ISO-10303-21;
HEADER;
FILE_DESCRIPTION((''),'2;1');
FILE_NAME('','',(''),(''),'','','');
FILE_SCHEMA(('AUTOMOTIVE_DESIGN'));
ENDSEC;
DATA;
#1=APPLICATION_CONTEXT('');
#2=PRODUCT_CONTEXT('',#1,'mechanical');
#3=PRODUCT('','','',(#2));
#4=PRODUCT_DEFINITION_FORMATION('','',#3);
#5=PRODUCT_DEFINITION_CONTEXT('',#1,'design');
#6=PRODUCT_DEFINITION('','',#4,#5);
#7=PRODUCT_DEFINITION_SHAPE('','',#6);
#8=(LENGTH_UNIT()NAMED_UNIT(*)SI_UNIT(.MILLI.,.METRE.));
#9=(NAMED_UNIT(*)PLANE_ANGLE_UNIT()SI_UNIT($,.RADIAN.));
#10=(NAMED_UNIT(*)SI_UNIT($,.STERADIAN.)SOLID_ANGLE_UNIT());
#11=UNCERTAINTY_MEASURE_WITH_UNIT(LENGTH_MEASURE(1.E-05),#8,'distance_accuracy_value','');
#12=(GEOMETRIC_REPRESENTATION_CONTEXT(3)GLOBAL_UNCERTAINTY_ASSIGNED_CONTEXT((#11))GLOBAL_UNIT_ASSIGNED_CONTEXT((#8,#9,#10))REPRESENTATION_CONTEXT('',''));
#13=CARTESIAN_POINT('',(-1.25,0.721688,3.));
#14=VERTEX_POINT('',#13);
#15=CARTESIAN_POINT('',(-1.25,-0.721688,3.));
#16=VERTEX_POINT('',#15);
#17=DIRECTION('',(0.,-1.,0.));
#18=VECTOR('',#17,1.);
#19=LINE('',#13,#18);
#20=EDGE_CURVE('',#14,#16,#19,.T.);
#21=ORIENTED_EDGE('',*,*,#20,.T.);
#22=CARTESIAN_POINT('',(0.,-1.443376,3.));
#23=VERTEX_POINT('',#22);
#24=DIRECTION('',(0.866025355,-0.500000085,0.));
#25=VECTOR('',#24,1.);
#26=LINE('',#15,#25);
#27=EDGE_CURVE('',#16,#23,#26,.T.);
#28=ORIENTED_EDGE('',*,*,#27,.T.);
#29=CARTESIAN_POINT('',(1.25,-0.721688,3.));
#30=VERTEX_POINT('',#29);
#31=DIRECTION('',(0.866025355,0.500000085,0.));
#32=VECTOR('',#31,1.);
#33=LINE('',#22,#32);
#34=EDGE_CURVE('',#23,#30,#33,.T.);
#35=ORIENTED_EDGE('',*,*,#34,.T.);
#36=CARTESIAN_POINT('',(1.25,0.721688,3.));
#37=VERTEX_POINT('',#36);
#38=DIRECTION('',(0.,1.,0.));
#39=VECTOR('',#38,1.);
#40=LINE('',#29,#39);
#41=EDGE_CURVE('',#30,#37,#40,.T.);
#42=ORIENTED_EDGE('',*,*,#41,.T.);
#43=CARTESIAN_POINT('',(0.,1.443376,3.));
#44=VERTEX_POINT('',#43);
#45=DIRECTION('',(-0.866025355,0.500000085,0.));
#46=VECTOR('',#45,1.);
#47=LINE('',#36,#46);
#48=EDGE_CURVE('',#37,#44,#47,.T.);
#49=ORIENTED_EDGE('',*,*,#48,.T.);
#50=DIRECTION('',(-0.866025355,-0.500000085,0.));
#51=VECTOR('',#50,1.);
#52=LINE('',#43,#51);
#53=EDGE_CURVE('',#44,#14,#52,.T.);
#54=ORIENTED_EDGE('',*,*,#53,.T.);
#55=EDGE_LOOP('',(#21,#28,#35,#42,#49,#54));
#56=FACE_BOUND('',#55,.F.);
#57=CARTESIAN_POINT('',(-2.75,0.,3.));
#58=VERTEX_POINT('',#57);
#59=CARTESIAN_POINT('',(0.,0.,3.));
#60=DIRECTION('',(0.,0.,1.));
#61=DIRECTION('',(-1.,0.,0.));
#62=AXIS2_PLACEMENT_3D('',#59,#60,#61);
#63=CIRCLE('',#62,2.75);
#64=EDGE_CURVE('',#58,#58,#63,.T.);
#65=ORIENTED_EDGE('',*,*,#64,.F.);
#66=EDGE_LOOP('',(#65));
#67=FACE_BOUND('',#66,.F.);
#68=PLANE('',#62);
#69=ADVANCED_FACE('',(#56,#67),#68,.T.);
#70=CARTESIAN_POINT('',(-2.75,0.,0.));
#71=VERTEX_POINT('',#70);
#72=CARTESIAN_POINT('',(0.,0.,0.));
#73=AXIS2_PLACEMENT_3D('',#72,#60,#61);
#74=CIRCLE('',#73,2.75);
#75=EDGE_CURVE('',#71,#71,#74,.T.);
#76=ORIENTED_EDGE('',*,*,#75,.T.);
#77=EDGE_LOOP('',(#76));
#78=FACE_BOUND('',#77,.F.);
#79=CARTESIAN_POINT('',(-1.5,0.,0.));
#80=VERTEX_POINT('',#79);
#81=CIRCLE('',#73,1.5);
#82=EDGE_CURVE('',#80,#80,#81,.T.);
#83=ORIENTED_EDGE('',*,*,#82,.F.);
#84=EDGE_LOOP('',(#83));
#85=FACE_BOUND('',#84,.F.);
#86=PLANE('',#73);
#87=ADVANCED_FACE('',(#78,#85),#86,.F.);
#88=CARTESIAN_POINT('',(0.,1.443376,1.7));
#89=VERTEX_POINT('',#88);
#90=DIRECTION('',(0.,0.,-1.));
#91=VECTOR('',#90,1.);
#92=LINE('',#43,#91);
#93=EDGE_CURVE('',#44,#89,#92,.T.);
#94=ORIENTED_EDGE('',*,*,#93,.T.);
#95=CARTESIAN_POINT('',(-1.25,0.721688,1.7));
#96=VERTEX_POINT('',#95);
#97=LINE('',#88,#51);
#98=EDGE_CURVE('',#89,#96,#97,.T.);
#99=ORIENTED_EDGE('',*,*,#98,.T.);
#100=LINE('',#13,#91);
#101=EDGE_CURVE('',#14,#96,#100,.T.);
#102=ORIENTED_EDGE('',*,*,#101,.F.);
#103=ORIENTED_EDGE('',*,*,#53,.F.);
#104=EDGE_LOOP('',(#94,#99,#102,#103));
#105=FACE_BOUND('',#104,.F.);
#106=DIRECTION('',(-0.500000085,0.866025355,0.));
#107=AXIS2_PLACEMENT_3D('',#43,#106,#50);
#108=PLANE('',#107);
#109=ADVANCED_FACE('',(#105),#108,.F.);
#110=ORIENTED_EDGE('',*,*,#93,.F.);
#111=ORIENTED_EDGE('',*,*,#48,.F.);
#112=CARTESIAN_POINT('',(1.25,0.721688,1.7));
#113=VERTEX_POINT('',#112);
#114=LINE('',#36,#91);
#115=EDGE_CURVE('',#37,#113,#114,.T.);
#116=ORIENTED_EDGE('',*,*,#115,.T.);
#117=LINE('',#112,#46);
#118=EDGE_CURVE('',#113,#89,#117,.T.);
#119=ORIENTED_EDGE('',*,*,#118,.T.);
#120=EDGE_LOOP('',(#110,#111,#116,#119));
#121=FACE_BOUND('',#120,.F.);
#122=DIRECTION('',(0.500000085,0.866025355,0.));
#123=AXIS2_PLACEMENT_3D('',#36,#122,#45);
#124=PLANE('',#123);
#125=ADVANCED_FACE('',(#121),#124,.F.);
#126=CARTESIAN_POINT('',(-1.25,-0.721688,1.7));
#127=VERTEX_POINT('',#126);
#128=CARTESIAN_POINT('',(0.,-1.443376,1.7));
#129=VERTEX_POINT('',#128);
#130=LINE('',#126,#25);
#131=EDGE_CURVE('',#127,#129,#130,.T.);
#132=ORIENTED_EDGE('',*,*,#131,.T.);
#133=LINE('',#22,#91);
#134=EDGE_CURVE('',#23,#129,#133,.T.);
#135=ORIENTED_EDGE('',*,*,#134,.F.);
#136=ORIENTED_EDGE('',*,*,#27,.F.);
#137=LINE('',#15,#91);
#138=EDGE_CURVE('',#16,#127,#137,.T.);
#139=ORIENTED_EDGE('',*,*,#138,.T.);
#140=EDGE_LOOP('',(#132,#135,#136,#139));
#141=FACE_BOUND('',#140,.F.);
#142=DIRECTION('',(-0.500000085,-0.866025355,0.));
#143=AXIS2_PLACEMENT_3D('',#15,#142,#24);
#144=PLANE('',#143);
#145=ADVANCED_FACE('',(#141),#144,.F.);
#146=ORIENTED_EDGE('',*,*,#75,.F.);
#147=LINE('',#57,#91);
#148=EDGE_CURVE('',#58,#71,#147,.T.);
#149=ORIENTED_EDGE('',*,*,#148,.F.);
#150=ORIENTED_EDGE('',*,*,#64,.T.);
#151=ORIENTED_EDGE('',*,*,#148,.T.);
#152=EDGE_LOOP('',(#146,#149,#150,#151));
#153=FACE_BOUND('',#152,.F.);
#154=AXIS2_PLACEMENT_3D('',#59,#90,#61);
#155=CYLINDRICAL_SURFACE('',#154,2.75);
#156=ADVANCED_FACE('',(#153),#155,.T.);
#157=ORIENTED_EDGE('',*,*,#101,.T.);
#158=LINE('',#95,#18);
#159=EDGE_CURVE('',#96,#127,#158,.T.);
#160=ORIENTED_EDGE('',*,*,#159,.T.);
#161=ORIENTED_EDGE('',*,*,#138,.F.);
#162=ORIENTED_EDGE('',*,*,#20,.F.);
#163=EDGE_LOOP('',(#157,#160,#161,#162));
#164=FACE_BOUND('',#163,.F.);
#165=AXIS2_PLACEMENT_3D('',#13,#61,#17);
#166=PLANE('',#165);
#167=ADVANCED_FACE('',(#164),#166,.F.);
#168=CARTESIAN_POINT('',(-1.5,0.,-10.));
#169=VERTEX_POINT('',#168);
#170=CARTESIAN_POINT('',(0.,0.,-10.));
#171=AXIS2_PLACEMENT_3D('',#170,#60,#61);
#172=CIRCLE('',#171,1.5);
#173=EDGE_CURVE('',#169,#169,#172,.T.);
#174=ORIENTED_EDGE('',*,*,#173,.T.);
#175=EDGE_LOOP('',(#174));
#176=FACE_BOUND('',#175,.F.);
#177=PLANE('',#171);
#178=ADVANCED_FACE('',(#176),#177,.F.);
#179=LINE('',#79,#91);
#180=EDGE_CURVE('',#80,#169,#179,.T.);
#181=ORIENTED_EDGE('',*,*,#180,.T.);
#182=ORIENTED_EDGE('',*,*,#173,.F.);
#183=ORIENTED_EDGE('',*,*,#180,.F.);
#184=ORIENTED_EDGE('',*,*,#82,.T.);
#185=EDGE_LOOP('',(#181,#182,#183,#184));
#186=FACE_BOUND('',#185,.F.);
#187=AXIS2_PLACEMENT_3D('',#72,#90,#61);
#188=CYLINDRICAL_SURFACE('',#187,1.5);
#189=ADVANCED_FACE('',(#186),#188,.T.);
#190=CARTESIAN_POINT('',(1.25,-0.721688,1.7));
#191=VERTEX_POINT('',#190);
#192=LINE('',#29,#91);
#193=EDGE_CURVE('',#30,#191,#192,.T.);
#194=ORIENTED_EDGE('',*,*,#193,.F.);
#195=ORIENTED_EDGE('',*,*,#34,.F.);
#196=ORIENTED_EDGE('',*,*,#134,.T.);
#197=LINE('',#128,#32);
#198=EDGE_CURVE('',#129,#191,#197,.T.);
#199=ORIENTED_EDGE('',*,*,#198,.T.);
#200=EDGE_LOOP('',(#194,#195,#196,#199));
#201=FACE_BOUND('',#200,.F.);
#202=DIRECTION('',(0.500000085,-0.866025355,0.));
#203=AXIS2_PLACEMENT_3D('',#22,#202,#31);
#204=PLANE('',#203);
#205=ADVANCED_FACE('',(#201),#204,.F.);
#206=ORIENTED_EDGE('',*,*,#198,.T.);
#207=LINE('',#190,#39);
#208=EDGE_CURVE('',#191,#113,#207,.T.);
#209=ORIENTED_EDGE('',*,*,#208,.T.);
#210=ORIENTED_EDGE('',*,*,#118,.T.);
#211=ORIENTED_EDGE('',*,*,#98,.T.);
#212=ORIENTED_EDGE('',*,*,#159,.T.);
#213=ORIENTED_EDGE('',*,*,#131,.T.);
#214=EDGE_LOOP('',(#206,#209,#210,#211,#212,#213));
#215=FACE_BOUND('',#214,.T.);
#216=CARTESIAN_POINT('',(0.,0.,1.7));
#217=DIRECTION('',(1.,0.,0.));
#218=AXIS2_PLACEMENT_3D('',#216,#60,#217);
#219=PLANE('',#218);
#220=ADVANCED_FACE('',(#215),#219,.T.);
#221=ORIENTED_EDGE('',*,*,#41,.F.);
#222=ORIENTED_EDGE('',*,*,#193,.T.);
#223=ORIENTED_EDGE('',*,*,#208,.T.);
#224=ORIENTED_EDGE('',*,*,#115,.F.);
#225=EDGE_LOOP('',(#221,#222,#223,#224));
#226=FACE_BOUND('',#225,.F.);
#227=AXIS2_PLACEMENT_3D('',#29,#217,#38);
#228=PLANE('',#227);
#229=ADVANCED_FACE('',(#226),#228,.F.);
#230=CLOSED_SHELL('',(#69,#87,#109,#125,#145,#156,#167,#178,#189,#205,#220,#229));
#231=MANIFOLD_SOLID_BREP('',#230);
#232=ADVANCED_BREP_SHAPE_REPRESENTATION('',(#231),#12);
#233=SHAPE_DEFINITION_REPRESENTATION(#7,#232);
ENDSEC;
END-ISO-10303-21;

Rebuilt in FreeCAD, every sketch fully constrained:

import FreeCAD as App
import Part
import Sketcher

V = App.Vector
Q = App.Units.Quantity

doc = App.newDocument("Part")
body = doc.addObject("PartDesign::Body", "Body")

sketch1 = body.newObject("Sketcher::SketchObject", "Sketch")
sketch1.AttachmentSupport = (doc.getObject("XZ_Plane"), [""])
sketch1.MapMode = "FlatFace"
sketch1.addGeometry([
    Part.LineSegment(V(-2.8, 0, 0), V(-1.5, 0, 0)),
    Part.LineSegment(V(-1.5, 0, 0), V(-1.5, -10, 0)),
    Part.LineSegment(V(-1.5, -10, 0), V(0, -10, 0)),
    Part.LineSegment(V(0, -10, 0), V(0, 3, 0)),
    Part.LineSegment(V(0, 3, 0), V(-2.8, 3, 0)),
    Part.LineSegment(V(-2.8, 3, 0), V(-2.8, 0, 0)),
], False)
sketch1.addConstraint([
    Sketcher.Constraint("Coincident", 0, 2, 1, 1),
    Sketcher.Constraint("Coincident", 1, 2, 2, 1),
    Sketcher.Constraint("Coincident", 2, 2, 3, 1),
    Sketcher.Constraint("Coincident", 3, 2, 4, 1),
    Sketcher.Constraint("Coincident", 4, 2, 5, 1),
    Sketcher.Constraint("Coincident", 5, 2, 0, 1),
    Sketcher.Constraint("Horizontal", 0),
    Sketcher.Constraint("Vertical", 1),
    Sketcher.Constraint("Horizontal", 2),
    Sketcher.Constraint("Vertical", 3),
    Sketcher.Constraint("Horizontal", 4),
    Sketcher.Constraint("Vertical", 5),
    Sketcher.Constraint("PointOnObject", 0, 2, -1),
    Sketcher.Constraint("PointOnObject", 2, 2, -2),
    Sketcher.Constraint("DistanceY", 1, 2, 1, 1, 10.0),
    Sketcher.Constraint("DistanceY", 3, 1, 3, 2, 13.0),
    Sketcher.Constraint("DistanceX", 2, 1, 2, 2, 1.5),
    Sketcher.Constraint("DistanceX", 0, 1, 0, 2, 1.25),
])
revolution = body.newObject("PartDesign::Revolution", "Revolution")
revolution.Profile = sketch1
revolution.ReferenceAxis = (sketch1, ["V_Axis"])
revolution.Angle = 360

sketch2 = body.newObject("Sketcher::SketchObject", "Sketch001")
sketch2.AttachmentSupport = (doc.getObject("XY_Plane"), [""])
sketch2.MapMode = "FlatFace"
sketch2.AttachmentOffset = App.Placement(V(0, 0, 3), App.Rotation())
sketch2.addGeometry([
    Part.LineSegment(V(-1.2, 0.7, 0), V(-1.2, -0.7, 0)),
    Part.LineSegment(V(-1.2, -0.7, 0), V(0, -1.4, 0)),
    Part.LineSegment(V(0, -1.4, 0), V(1.2, -0.7, 0)),
    Part.LineSegment(V(1.2, -0.7, 0), V(1.2, 0.7, 0)),
    Part.LineSegment(V(1.2, 0.7, 0), V(0, 1.4, 0)),
    Part.LineSegment(V(0, 1.4, 0), V(-1.2, 0.7, 0)),
], False)
sketch2.addConstraint([
    Sketcher.Constraint("Coincident", 0, 2, 1, 1),
    Sketcher.Constraint("Coincident", 1, 2, 2, 1),
    Sketcher.Constraint("Coincident", 2, 2, 3, 1),
    Sketcher.Constraint("Coincident", 3, 2, 4, 1),
    Sketcher.Constraint("Coincident", 4, 2, 5, 1),
    Sketcher.Constraint("Coincident", 5, 2, 0, 1),
    Sketcher.Constraint("Vertical", 0),
    Sketcher.Constraint("Vertical", 3),
    Sketcher.Constraint("Symmetric", 0, 2, 3, 2, -1, 1),
    Sketcher.Constraint("Symmetric", 1, 2, 4, 2, -1, 1),
    Sketcher.Constraint("PointOnObject", 1, 2, -2),
    Sketcher.Constraint("Parallel", 2, 5),
    Sketcher.Constraint("Horizontal", 0, 2, 2, 2),
    Sketcher.Constraint("Angle", 1, Q("-30.000006 deg")),
    Sketcher.Constraint("DistanceX", 0, 2, 2, 2, 2.5),
    Sketcher.Constraint("DistanceY", 0, 2, 0, 1, 1.443376),
])
pocket1 = body.newObject("PartDesign::Pocket", "Pocket")
pocket1.Profile = sketch2
pocket1.Length = 1.3

doc.recompute()
